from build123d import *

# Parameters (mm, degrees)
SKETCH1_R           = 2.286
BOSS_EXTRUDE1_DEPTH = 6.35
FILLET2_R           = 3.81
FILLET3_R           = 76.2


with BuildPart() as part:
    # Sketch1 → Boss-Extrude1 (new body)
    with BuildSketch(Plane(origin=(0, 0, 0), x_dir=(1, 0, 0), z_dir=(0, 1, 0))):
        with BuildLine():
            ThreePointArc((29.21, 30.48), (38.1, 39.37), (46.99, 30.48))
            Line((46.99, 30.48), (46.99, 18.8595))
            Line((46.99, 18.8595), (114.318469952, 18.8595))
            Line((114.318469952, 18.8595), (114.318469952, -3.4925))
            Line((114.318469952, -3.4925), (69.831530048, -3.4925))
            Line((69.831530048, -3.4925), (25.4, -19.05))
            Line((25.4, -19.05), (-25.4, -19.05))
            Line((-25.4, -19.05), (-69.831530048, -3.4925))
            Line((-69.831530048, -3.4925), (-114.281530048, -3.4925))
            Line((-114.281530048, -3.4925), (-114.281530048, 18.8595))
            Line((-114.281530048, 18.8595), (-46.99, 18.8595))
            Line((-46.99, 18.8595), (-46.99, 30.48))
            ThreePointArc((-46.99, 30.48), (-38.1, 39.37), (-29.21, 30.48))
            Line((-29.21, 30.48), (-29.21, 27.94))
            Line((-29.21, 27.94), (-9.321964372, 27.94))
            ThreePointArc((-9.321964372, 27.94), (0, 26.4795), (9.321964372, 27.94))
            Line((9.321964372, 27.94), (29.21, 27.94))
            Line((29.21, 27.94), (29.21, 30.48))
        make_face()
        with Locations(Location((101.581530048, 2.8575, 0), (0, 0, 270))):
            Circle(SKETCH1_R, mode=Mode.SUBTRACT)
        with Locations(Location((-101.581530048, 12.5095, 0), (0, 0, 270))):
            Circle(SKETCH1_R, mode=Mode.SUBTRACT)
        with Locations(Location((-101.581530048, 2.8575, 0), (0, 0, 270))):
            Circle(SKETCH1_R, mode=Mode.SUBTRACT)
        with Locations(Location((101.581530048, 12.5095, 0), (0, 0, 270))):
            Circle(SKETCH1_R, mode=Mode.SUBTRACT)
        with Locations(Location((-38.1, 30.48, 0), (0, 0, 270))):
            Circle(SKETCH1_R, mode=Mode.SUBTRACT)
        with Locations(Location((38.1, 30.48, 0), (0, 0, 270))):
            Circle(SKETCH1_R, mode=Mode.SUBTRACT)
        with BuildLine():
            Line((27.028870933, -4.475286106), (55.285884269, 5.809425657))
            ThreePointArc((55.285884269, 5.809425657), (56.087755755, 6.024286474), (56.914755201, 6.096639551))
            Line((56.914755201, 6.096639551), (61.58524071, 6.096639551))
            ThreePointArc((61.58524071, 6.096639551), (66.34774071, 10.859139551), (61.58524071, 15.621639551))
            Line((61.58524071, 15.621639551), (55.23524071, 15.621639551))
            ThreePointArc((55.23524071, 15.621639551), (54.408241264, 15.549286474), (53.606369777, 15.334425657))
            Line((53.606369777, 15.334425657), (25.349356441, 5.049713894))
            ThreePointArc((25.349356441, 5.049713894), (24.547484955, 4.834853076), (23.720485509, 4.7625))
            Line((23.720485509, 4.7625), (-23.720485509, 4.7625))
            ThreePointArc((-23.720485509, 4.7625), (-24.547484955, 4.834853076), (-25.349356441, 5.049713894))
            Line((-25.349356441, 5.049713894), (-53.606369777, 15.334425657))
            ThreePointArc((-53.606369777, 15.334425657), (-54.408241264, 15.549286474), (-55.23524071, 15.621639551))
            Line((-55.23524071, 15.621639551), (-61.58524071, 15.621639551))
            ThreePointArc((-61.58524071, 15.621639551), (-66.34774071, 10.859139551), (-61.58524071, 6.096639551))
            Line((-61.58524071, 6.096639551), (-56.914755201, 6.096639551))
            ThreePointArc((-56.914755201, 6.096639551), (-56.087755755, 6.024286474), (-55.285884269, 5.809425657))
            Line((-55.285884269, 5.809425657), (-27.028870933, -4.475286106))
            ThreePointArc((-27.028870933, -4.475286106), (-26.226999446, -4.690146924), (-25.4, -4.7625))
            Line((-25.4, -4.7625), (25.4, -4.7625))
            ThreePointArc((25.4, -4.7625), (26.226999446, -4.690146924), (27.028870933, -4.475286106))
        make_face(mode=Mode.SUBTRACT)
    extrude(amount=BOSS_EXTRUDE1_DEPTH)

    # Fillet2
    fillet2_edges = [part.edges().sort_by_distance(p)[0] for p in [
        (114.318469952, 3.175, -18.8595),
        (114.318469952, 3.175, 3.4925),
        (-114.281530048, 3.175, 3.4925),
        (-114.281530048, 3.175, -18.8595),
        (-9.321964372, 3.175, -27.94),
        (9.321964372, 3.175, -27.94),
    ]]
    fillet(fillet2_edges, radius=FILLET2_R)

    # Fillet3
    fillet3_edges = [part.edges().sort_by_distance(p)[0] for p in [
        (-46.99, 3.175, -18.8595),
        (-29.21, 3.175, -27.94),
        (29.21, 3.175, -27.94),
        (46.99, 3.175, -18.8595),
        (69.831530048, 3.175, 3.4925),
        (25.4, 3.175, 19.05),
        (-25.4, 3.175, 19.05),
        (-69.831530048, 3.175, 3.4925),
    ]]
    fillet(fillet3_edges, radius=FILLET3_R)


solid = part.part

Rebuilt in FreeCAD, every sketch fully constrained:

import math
import FreeCAD as App
import Part
import Sketcher
from FreeCAD import Vector
Q = App.Units.Quantity


def edges_at(feature, points):
    """Names of the edges that pass closest to the given points."""
    edges = feature.Shape.Edges
    near = lambda p: min(range(len(edges)), key=lambda i: edges[i].distToShape(Part.Vertex(*p))[0])
    return sorted({f"Edge{near(p) + 1}" for p in points})

doc = App.newDocument("Part")
params = doc.addObject("Spreadsheet::Sheet", "Params")
for row, (alias, value) in enumerate([
    ("sketch1_radius", "1.2 in"),
    ("sketch1_diameter", "0.18 in"),
    ("sketch1_width", "2 in"),
    ("sketch1_radius2", "0.35 in"),
    ("sketch1_height", "0.1 in"),
    ("pad1_length", "0.25 in"),
    ("fillet_radius", "0.15 in"),
    ("fillet2_radius", "3 in"),
], start=1):
    params.set(f"A{row}", alias)
    params.set(f"B{row}", "=" + value)
    params.setAlias(f"B{row}", alias)

body = doc.addObject("PartDesign::Body", "Body")

# Sketch on XZ plane
sketch1 = body.newObject("Sketcher::SketchObject", "Sketch")
sketch1.AttachmentSupport = (doc.getObject("XZ_Plane"), [""])
sketch1.MapMode = "FlatFace"
sketch1.addGeometry(Part.ArcOfCircle(Part.Circle(Vector(38.1, -30.5, 0), Vector(0, 0, 1), 8.9), math.radians(180), math.radians(360)), False)
sketch1.addGeometry(Part.LineSegment(Vector(29.2, -30.5, 0), Vector(29.2, -27.9, 0)), False)
sketch1.addGeometry(Part.LineSegment(Vector(29.2, -27.9, 0), Vector(9.3, -27.9, 0)), False)
sketch1.addGeometry(Part.ArcOfCircle(Part.Circle(Vector(0, -57, 0), Vector(0, 0, 1), 30.5), math.radians(72), math.radians(108)), False)
sketch1.addGeometry(Part.LineSegment(Vector(-9.3, -27.9, 0), Vector(-29.2, -27.9, 0)), False)
sketch1.addGeometry(Part.LineSegment(Vector(-29.2, -27.9, 0), Vector(-29.2, -30.5, 0)), False)
sketch1.addGeometry(Part.ArcOfCircle(Part.Circle(Vector(-38.1, -30.5, 0), Vector(0, 0, 1), 8.9), math.radians(180), math.radians(360)), False)
sketch1.addGeometry(Part.LineSegment(Vector(-47, -30.5, 0), Vector(-47, -18.9, 0)), False)
sketch1.addGeometry(Part.LineSegment(Vector(-47, -18.9, 0), Vector(-114.3, -18.9, 0)), False)
sketch1.addGeometry(Part.LineSegment(Vector(-114.3, -18.9, 0), Vector(-114.3, 3.5, 0)), False)
sketch1.addGeometry(Part.LineSegment(Vector(-114.3, 3.5, 0), Vector(-69.8, 3.5, 0)), False)
sketch1.addGeometry(Part.LineSegment(Vector(-69.8, 3.5, 0), Vector(-25.4, 19.1, 0)), False)
sketch1.addGeometry(Part.LineSegment(Vector(-25.4, 19.1, 0), Vector(25.4, 19.1, 0)), False)
sketch1.addGeometry(Part.LineSegment(Vector(25.4, 19.1, 0), Vector(69.8, 3.5, 0)), False)
sketch1.addGeometry(Part.LineSegment(Vector(69.8, 3.5, 0), Vector(114.3, 3.5, 0)), False)
sketch1.addGeometry(Part.LineSegment(Vector(114.3, 3.5, 0), Vector(114.3, -18.9, 0)), False)
sketch1.addGeometry(Part.LineSegment(Vector(114.3, -18.9, 0), Vector(47, -18.9, 0)), False)
sketch1.addGeometry(Part.LineSegment(Vector(47, -18.9, 0), Vector(47, -30.5, 0)), False)
sketch1.addGeometry(Part.Circle(Vector(101.6, -2.9, 0), Vector(0, 0, 1), 2.3), False)
sketch1.addGeometry(Part.Circle(Vector(101.6, -12.5, 0), Vector(0, 0, 1), 2.3), False)
sketch1.addGeometry(Part.Circle(Vector(-101.6, -2.9, 0), Vector(0, 0, 1), 2.3), False)
sketch1.addGeometry(Part.ArcOfCircle(Part.Circle(Vector(25.4, 0, 0), Vector(0, 0, 1), 4.8), math.radians(70), math.radians(90)), False)
sketch1.addGeometry(Part.LineSegment(Vector(25.4, 4.8, 0), Vector(-25.4, 4.8, 0)), False)
sketch1.addGeometry(Part.ArcOfCircle(Part.Circle(Vector(-25.4, 0, 0), Vector(0, 0, 1), 4.8), math.radians(90), math.radians(110)), False)
sketch1.addGeometry(Part.LineSegment(Vector(-27, 4.5, 0), Vector(-55.3, -5.8, 0)), False)
sketch1.addGeometry(Part.ArcOfCircle(Part.Circle(Vector(-56.9, -1.3, 0), Vector(0, 0, 1), 4.8), math.radians(-90), math.radians(-70)), False)
sketch1.addGeometry(Part.LineSegment(Vector(-56.9, -6.1, 0), Vector(-61.6, -6.1, 0)), False)
sketch1.addGeometry(Part.ArcOfCircle(Part.Circle(Vector(-61.6, -10.9, 0), Vector(0, 0, 1), 4.8), math.radians(90), math.radians(270)), False)
sketch1.addGeometry(Part.LineSegment(Vector(-61.6, -15.6, 0), Vector(-55.2, -15.6, 0)), False)
sketch1.addGeometry(Part.ArcOfCircle(Part.Circle(Vector(-55.2, -10.9, 0), Vector(0, 0, 1), 4.8), math.radians(-90), math.radians(-70)), False)
sketch1.addGeometry(Part.LineSegment(Vector(-53.6, -15.3, 0), Vector(-25.3, -5, 0)), False)
sketch1.addGeometry(Part.ArcOfCircle(Part.Circle(Vector(-23.7, -9.5, 0), Vector(0, 0, 1), 4.8), math.radians(90), math.radians(110)), False)
sketch1.addGeometry(Part.LineSegment(Vector(-23.7, -4.8, 0), Vector(23.7, -4.8, 0)), False)
sketch1.addGeometry(Part.ArcOfCircle(Part.Circle(Vector(23.7, -9.5, 0), Vector(0, 0, 1), 4.8), math.radians(70), math.radians(90)), False)
sketch1.addGeometry(Part.LineSegment(Vector(25.3, -5, 0), Vector(53.6, -15.3, 0)), False)
sketch1.addGeometry(Part.ArcOfCircle(Part.Circle(Vector(55.2, -10.9, 0), Vector(0, 0, 1), 4.8), math.radians(-110), math.radians(-90)), False)
sketch1.addGeometry(Part.LineSegment(Vector(55.2, -15.6, 0), Vector(61.6, -15.6, 0)), False)
sketch1.addGeometry(Part.ArcOfCircle(Part.Circle(Vector(61.6, -10.9, 0), Vector(0, 0, 1), 4.8), math.radians(-90), math.radians(90)), False)
sketch1.addGeometry(Part.LineSegment(Vector(61.6, -6.1, 0), Vector(56.9, -6.1, 0)), False)
sketch1.addGeometry(Part.ArcOfCircle(Part.Circle(Vector(56.9, -1.3, 0), Vector(0, 0, 1), 4.8), math.radians(-110), math.radians(-90)), False)
sketch1.addGeometry(Part.LineSegment(Vector(55.3, -5.8, 0), Vector(27, 4.5, 0)), False)
sketch1.addGeometry(Part.Circle(Vector(-101.6, -12.5, 0), Vector(0, 0, 1), 2.3), False)
sketch1.addGeometry(Part.Circle(Vector(38.1, -30.5, 0), Vector(0, 0, 1), 2.3), False)
sketch1.addGeometry(Part.Circle(Vector(-38.1, -30.5, 0), Vector(0, 0, 1), 2.3), False)
sketch1.addConstraint(Sketcher.Constraint("Tangent", 0, 1, 1, 1))
sketch1.addConstraint(Sketcher.Constraint("Coincident", 1, 2, 2, 1))
sketch1.addConstraint(Sketcher.Constraint("Coincident", 2, 2, 3, 1))
sketch1.addConstraint(Sketcher.Constraint("Coincident", 3, 2, 4, 1))
sketch1.addConstraint(Sketcher.Constraint("Coincident", 4, 2, 5, 1))
sketch1.addConstraint(Sketcher.Constraint("Tangent", 5, 2, 6, 2))
sketch1.addConstraint(Sketcher.Constraint("Tangent", 6, 1, 7, 1))
sketch1.addConstraint(Sketcher.Constraint("Coincident", 7, 2, 8, 1))
sketch1.addConstraint(Sketcher.Constraint("Coincident", 8, 2, 9, 1))
sketch1.addConstraint(Sketcher.Constraint("Coincident", 9, 2, 10, 1))
sketch1.addConstraint(Sketcher.Constraint("Coincident", 10, 2, 11, 1))
sketch1.addConstraint(Sketcher.Constraint("Coincident", 11, 2, 12, 1))
sketch1.addConstraint(Sketcher.Constraint("Coincident", 12, 2, 13, 1))
sketch1.addConstraint(Sketcher.Constraint("Coincident", 13, 2, 14, 1))
sketch1.addConstraint(Sketcher.Constraint("Coincident", 14, 2, 15, 1))
sketch1.addConstraint(Sketcher.Constraint("Coincident", 15, 2, 16, 1))
sketch1.addConstraint(Sketcher.Constraint("Coincident", 16, 2, 17, 1))
sketch1.addConstraint(Sketcher.Constraint("Tangent", 17, 2, 0, 2))
sketch1.addConstraint(Sketcher.Constraint("Tangent", 21, 2, 22, 1))
sketch1.addConstraint(Sketcher.Constraint("Tangent", 22, 2, 23, 1))
sketch1.addConstraint(Sketcher.Constraint("Tangent", 23, 2, 24, 1))
sketch1.addConstraint(Sketcher.Constraint("Tangent", 24, 2, 25, 2))
sketch1.addConstraint(Sketcher.Constraint("Tangent", 25, 1, 26, 1))
sketch1.addConstraint(Sketcher.Constraint("Tangent", 26, 2, 27, 1))
sketch1.addConstraint(Sketcher.Constraint("Tangent", 27, 2, 28, 1))
sketch1.addConstraint(Sketcher.Constraint("Tangent", 28, 2, 29, 1))
sketch1.addConstraint(Sketcher.Constraint("Tangent", 29, 2, 30, 1))
sketch1.addConstraint(Sketcher.Constraint("Tangent", 30, 2, 31, 2))
sketch1.addConstraint(Sketcher.Constraint("Tangent", 31, 1, 32, 1))
sketch1.addConstraint(Sketcher.Constraint("Tangent", 32, 2, 33, 2))
sketch1.addConstraint(Sketcher.Constraint("Tangent", 33, 1, 34, 1))
sketch1.addConstraint(Sketcher.Constraint("Tangent", 34, 2, 35, 1))
sketch1.addConstraint(Sketcher.Constraint("Tangent", 35, 2, 36, 1))
sketch1.addConstraint(Sketcher.Constraint("Tangent", 36, 2, 37, 1))
sketch1.addConstraint(Sketcher.Constraint("Tangent", 37, 2, 38, 1))
sketch1.addConstraint(Sketcher.Constraint("Tangent", 38, 2, 39, 2))
sketch1.addConstraint(Sketcher.Constraint("Tangent", 39, 1, 40, 1))
sketch1.addConstraint(Sketcher.Constraint("Tangent", 40, 2, 21, 1))
sketch1.addConstraint(Sketcher.Constraint("Vertical", 1))
sketch1.addConstraint(Sketcher.Constraint("Horizontal", 2))
sketch1.addConstraint(Sketcher.Constraint("Horizontal", 4))
sketch1.addConstraint(Sketcher.Constraint("Vertical", 5))
sketch1.addConstraint(Sketcher.Constraint("Vertical", 7))
sketch1.addConstraint(Sketcher.Constraint("Horizontal", 8))
sketch1.addConstraint(Sketcher.Constraint("Vertical", 9))
sketch1.addConstraint(Sketcher.Constraint("Horizontal", 10))
sketch1.addConstraint(Sketcher.Constraint("Horizontal", 12))
sketch1.addConstraint(Sketcher.Constraint("Horizontal", 14))
sketch1.addConstraint(Sketcher.Constraint("Vertical", 15))
sketch1.addConstraint(Sketcher.Constraint("Horizontal", 16))
sketch1.addConstraint(Sketcher.Constraint("Vertical", 17))
sketch1.addConstraint(Sketcher.Constraint("Horizontal", 22))
sketch1.addConstraint(Sketcher.Constraint("Horizontal", 26))
sketch1.addConstraint(Sketcher.Constraint("Horizontal", 28))
sketch1.addConstraint(Sketcher.Constraint("Horizontal", 32))
sketch1.addConstraint(Sketcher.Constraint("Horizontal", 36))
sketch1.addConstraint(Sketcher.Constraint("Horizontal", 38))
sketch1.addConstraint(Sketcher.Constraint("Coincident", 42, 3, 0, 3))
sketch1.addConstraint(Sketcher.Constraint("Coincident", 43, 3, 6, 3))
sketch1.addConstraint(Sketcher.Constraint("Equal", 0, 6))
sketch1.addConstraint(Sketcher.Constraint("Equal", 18, 19))
sketch1.addConstraint(Sketcher.Constraint("Equal", 19, 20))
sketch1.addConstraint(Sketcher.Constraint("Equal", 21, 23))
sketch1.addConstraint(Sketcher.Constraint("Equal", 23, 25))
sketch1.addConstraint(Sketcher.Constraint("Equal", 25, 27))
sketch1.addConstraint(Sketcher.Constraint("Equal", 27, 29))
sketch1.addConstraint(Sketcher.Constraint("Equal", 29, 31))
sketch1.addConstraint(Sketcher.Constraint("Equal", 31, 33))
sketch1.addConstraint(Sketcher.Constraint("Equal", 33, 35))
sketch1.addConstraint(Sketcher.Constraint("Equal", 35, 37))
sketch1.addConstraint(Sketcher.Constraint("Equal", 37, 39))
sketch1.addConstraint(Sketcher.Constraint("Equal", 20, 41))
sketch1.addConstraint(Sketcher.Constraint("Equal", 41, 42))
sketch1.addConstraint(Sketcher.Constraint("Equal", 42, 43))
sketch1.addConstraint(Sketcher.Constraint("Symmetric", 21, 3, 23, 3, -1, 1))
sketch1.addConstraint(Sketcher.Constraint("Symmetric", 0, 3, 6, 3, -2))
sketch1.addConstraint(Sketcher.Constraint("Symmetric", 18, 3, 20, 3, -2))
sketch1.addConstraint(Sketcher.Constraint("Symmetric", 29, 3, 35, 3, -2))
sketch1.addConstraint(Sketcher.Constraint("Symmetric", 19, 3, 41, 3, -2))
sketch1.addConstraint(Sketcher.Constraint("Symmetric", 2, 2, 3, 2, -2))
sketch1.addConstraint(Sketcher.Constraint("Symmetric", 10, 2, 13, 2, -2))
sketch1.addConstraint(Sketcher.Constraint("Parallel", 24, 30))
sketch1.addConstraint(Sketcher.Constraint("Parallel", 34, 40))
sketch1.addConstraint(Sketcher.Constraint("Horizontal", 8, 2, 15, 2))
sketch1.addConstraint(Sketcher.Constraint("Horizontal", 30, 2, 33, 1))
sketch1.addConstraint(Sketcher.Constraint("Vertical", 18, 3, 19, 3))
sketch1.addConstraint(Sketcher.Constraint("Vertical", 23, 3, 11, 2))
sketch1.addConstraint(Sketcher.Constraint("Vertical", 21, 3, 12, 2))
sketch1.addConstraint(Sketcher.Constraint("Equal", 28, 36))
sketch1.addConstraint(Sketcher.Constraint("Equal", 24, 30))
sketch1.addConstraint(Sketcher.Constraint("Radius", 3, Q("1.2 in")))
sketch1.addConstraint(Sketcher.Constraint("Diameter", 18, Q("0.18 in")))
sketch1.addConstraint(Sketcher.Constraint("DistanceX", 12, 1, 12, 2, Q("2 in")))
sketch1.addConstraint(Sketcher.Constraint("Radius", 0, Q("0.35 in")))
sketch1.addConstraint(Sketcher.Constraint("DistanceY", 1, 1, 1, 2, Q("0.1 in")))
sketch1.addConstraint(Sketcher.Constraint("Angle", 24, Q("-160 deg")))
sketch1.addConstraint(Sketcher.Constraint("Radius", 21, Q("0.1875 in")))
sketch1.addConstraint(Sketcher.Constraint("DistanceX", 6, 3, 0, 3, Q("3 in")))
sketch1.addConstraint(Sketcher.Constraint("DistanceX", 10, 1, 10, 2, Q("1.75 in")))
sketch1.addConstraint(Sketcher.Constraint("DistanceX", 28, 1, 28, 2, Q("0.25 in")))
sketch1.addConstraint(Sketcher.Constraint("DistanceY", 9, 1, 9, 2, Q("0.88 in")))
sketch1.addConstraint(Sketcher.Constraint("DistanceY", 0, 3, -1, 1, Q("1.2 in")))
sketch1.addConstraint(Sketcher.Constraint("DistanceX", 8, 2, 41, 3, Q("0.5 in")))
sketch1.addConstraint(Sketcher.Constraint("DistanceY", -1, 1, 11, 2, Q("0.75 in")))
sketch1.addConstraint(Sketcher.Constraint("DistanceY", 3, 3, 18, 3, Q("2.13 in")))
sketch1.addConstraint(Sketcher.Constraint("DistanceY", 19, 3, 18, 3, Q("0.38 in")))
sketch1.addConstraint(Sketcher.Constraint("DistanceY", 8, 2, 41, 3, Q("0.25 in")))
sketch1.addConstraint(Sketcher.Constraint("DistanceY", 16, 2, 21, 2, Q("0.93 in")))
sketch1.addConstraint(Sketcher.Constraint("Distance", 11, Q("47.076498 mm")))
sketch1.addConstraint(Sketcher.Constraint("DistanceX", 14, 1, 14, 2, Q("44.48694 mm")))
sketch1.addConstraint(Sketcher.Constraint("DistanceX", 32, 1, 32, 2, Q("47.440971 mm")))
sketch1.addConstraint(Sketcher.Constraint("DistanceY", 25, 3, -1, 1, Q("1.33414 mm")))
sketch1.setExpression("Constraints[90]", "Params.sketch1_radius")
sketch1.setExpression("Constraints[91]", "Params.sketch1_diameter")
sketch1.setExpression("Constraints[92]", "Params.sketch1_width")
sketch1.setExpression("Constraints[93]", "Params.sketch1_radius2")
sketch1.setExpression("Constraints[94]", "Params.sketch1_height")
pad1 = body.newObject("PartDesign::Pad", "Pad")
pad1.Profile = sketch1
pad1.setExpression("Length", "Params.pad1_length")
pad1.Reversed = True
doc.recompute()

fillet = body.newObject("PartDesign::Fillet", "Fillet")
fillet.Base = (pad1, edges_at(pad1, [
    (114.318, 3.175, -18.86),
    (114.318, 3.175, 3.493),
    (-114.282, 3.175, 3.493),
    (-114.282, 3.175, -18.86),
    (-9.322, 3.175, -27.94),
    (9.322, 3.175, -27.94),
]))
fillet.setExpression("Radius", "Params.fillet_radius")
doc.recompute()

fillet2 = body.newObject("PartDesign::Fillet", "Fillet001")
fillet2.Base = (fillet, edges_at(fillet, [
    (-46.99, 3.175, -18.86),
    (-29.21, 3.175, -27.94),
    (29.21, 3.175, -27.94),
    (46.99, 3.175, -18.86),
    (69.832, 3.175, 3.493),
    (25.4, 3.175, 19.05),
    (-25.4, 3.175, 19.05),
    (-69.832, 3.175, 3.493),
]))
fillet2.setExpression("Radius", "Params.fillet2_radius")

doc.recompute()
